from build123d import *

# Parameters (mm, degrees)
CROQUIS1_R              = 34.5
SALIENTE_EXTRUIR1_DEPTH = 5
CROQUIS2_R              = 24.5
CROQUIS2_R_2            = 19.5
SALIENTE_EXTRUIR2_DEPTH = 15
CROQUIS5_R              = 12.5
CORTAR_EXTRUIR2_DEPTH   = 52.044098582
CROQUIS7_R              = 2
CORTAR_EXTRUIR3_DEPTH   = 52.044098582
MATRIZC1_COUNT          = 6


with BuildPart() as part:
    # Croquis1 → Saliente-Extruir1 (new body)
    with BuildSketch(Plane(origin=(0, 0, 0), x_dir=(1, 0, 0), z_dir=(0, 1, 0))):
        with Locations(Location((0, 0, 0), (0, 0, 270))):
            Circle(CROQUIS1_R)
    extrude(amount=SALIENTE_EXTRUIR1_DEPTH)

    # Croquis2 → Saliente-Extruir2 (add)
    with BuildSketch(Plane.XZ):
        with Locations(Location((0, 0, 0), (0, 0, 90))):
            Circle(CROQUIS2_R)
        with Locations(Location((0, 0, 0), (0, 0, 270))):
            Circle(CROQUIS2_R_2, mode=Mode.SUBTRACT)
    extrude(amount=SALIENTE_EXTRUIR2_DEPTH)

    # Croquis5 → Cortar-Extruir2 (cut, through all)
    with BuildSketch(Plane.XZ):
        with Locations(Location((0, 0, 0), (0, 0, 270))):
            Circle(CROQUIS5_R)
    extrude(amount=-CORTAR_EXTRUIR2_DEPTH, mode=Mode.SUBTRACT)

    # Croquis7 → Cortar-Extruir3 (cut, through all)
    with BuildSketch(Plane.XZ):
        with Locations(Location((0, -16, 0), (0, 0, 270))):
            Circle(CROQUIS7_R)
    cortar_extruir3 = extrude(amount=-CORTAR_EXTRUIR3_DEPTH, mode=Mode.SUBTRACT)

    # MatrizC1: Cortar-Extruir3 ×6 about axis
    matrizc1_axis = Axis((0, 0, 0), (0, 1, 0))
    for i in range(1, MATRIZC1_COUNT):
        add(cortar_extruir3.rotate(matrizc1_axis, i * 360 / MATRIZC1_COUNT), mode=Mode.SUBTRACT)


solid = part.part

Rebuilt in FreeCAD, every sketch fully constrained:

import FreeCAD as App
import Part
import Sketcher
from FreeCAD import Vector

doc = App.newDocument("Part")
params = doc.addObject("Spreadsheet::Sheet", "Params")
for row, (alias, value) in enumerate([
    ("sketch1_diameter", "69 mm"),
    ("pad1_length", "5 mm"),
    ("sketch2_diameter", "49 mm"),
    ("sketch2_diameter2", "39 mm"),
    ("pad2_length", "15 mm"),
    ("sketch3_diameter", "25 mm"),
    ("sketch4_diameter", "4 mm"),
], start=1):
    params.set(f"A{row}", alias)
    params.set(f"B{row}", "=" + value)
    params.setAlias(f"B{row}", alias)

body = doc.addObject("PartDesign::Body", "Body")

sketch1 = doc.addObject("Sketcher::SketchObject", "Sketch")
body.addObject(sketch1)
sketch1.AttachmentSupport = (doc.XZ_Plane, [""])
sketch1.MapMode = "FlatFace"
sketch1.addGeometry(Part.Circle(Vector(0, 0, 0), Vector(0, 0, 1), 34.5), False)
sketch1.addConstraint([
    Sketcher.Constraint("Coincident", 0, 3, -1, 1),
    Sketcher.Constraint("Diameter", 0, 69.0),
])
sketch1.setExpression("Constraints[1]", "Params.sketch1_diameter")
pad1 = doc.addObject("PartDesign::Pad", "Pad")
body.addObject(pad1)
pad1.Profile = sketch1
pad1.setExpression("Length", "Params.pad1_length")
pad1.Reversed = True

sketch2 = doc.addObject("Sketcher::SketchObject", "Sketch001")
body.addObject(sketch2)
sketch2.AttachmentSupport = (doc.XZ_Plane, [""])
sketch2.MapMode = "FlatFace"
sketch2.addGeometry([
    Part.Circle(Vector(0, 0, 0), Vector(0, 0, 1), 24.5),
    Part.Circle(Vector(0, 0, 0), Vector(0, 0, 1), 19.5),
], False)
sketch2.addConstraint([
    Sketcher.Constraint("Coincident", 0, 3, -1, 1),
    Sketcher.Constraint("Coincident", 1, 3, -1, 1),
    Sketcher.Constraint("Diameter", 0, 49.0),
    Sketcher.Constraint("Diameter", 1, 39.0),
])
sketch2.setExpression("Constraints[2]", "Params.sketch2_diameter")
sketch2.setExpression("Constraints[3]", "Params.sketch2_diameter2")
pad2 = doc.addObject("PartDesign::Pad", "Pad001")
body.addObject(pad2)
pad2.Profile = sketch2
pad2.setExpression("Length", "Params.pad2_length")

sketch3 = doc.addObject("Sketcher::SketchObject", "Sketch002")
body.addObject(sketch3)
sketch3.AttachmentSupport = (doc.XZ_Plane, [""])
sketch3.MapMode = "FlatFace"
sketch3.addGeometry(Part.Circle(Vector(0, 0, 0), Vector(0, 0, 1), 12.5), False)
sketch3.addConstraint([
    Sketcher.Constraint("Coincident", 0, 3, -1, 1),
    Sketcher.Constraint("Diameter", 0, 25.0),
])
sketch3.setExpression("Constraints[1]", "Params.sketch3_diameter")
pocket1 = doc.addObject("PartDesign::Pocket", "Pocket")
body.addObject(pocket1)
pocket1.Profile = sketch3
pocket1.Type = "ThroughAll"

sketch4 = doc.addObject("Sketcher::SketchObject", "Sketch003")
body.addObject(sketch4)
sketch4.AttachmentSupport = (doc.XZ_Plane, [""])
sketch4.MapMode = "FlatFace"
sketch4.addGeometry(Part.Circle(Vector(0, -16, 0), Vector(0, 0, 1), 2), False)
sketch4.addConstraint([
    Sketcher.Constraint("PointOnObject", 0, 3, -2),
    Sketcher.Constraint("Diameter", 0, 4.0),
    Sketcher.Constraint("DistanceY", 0, 3, -1, 1, 16.0),
])
sketch4.setExpression("Constraints[1]", "Params.sketch4_diameter")
pocket2 = doc.addObject("PartDesign::Pocket", "Pocket001")
body.addObject(pocket2)
pocket2.Profile = sketch4
pocket2.Type = "ThroughAll"
doc.recompute()

polarpattern = doc.addObject("PartDesign::PolarPattern", "PolarPattern")
body.addObject(polarpattern)
polarpattern.Originals = [pocket2]
polarpattern.Axis = (doc.Y_Axis, [""])
polarpattern.Angle = 360
polarpattern.Occurrences = 6
body.Tip = polarpattern

doc.recompute()
